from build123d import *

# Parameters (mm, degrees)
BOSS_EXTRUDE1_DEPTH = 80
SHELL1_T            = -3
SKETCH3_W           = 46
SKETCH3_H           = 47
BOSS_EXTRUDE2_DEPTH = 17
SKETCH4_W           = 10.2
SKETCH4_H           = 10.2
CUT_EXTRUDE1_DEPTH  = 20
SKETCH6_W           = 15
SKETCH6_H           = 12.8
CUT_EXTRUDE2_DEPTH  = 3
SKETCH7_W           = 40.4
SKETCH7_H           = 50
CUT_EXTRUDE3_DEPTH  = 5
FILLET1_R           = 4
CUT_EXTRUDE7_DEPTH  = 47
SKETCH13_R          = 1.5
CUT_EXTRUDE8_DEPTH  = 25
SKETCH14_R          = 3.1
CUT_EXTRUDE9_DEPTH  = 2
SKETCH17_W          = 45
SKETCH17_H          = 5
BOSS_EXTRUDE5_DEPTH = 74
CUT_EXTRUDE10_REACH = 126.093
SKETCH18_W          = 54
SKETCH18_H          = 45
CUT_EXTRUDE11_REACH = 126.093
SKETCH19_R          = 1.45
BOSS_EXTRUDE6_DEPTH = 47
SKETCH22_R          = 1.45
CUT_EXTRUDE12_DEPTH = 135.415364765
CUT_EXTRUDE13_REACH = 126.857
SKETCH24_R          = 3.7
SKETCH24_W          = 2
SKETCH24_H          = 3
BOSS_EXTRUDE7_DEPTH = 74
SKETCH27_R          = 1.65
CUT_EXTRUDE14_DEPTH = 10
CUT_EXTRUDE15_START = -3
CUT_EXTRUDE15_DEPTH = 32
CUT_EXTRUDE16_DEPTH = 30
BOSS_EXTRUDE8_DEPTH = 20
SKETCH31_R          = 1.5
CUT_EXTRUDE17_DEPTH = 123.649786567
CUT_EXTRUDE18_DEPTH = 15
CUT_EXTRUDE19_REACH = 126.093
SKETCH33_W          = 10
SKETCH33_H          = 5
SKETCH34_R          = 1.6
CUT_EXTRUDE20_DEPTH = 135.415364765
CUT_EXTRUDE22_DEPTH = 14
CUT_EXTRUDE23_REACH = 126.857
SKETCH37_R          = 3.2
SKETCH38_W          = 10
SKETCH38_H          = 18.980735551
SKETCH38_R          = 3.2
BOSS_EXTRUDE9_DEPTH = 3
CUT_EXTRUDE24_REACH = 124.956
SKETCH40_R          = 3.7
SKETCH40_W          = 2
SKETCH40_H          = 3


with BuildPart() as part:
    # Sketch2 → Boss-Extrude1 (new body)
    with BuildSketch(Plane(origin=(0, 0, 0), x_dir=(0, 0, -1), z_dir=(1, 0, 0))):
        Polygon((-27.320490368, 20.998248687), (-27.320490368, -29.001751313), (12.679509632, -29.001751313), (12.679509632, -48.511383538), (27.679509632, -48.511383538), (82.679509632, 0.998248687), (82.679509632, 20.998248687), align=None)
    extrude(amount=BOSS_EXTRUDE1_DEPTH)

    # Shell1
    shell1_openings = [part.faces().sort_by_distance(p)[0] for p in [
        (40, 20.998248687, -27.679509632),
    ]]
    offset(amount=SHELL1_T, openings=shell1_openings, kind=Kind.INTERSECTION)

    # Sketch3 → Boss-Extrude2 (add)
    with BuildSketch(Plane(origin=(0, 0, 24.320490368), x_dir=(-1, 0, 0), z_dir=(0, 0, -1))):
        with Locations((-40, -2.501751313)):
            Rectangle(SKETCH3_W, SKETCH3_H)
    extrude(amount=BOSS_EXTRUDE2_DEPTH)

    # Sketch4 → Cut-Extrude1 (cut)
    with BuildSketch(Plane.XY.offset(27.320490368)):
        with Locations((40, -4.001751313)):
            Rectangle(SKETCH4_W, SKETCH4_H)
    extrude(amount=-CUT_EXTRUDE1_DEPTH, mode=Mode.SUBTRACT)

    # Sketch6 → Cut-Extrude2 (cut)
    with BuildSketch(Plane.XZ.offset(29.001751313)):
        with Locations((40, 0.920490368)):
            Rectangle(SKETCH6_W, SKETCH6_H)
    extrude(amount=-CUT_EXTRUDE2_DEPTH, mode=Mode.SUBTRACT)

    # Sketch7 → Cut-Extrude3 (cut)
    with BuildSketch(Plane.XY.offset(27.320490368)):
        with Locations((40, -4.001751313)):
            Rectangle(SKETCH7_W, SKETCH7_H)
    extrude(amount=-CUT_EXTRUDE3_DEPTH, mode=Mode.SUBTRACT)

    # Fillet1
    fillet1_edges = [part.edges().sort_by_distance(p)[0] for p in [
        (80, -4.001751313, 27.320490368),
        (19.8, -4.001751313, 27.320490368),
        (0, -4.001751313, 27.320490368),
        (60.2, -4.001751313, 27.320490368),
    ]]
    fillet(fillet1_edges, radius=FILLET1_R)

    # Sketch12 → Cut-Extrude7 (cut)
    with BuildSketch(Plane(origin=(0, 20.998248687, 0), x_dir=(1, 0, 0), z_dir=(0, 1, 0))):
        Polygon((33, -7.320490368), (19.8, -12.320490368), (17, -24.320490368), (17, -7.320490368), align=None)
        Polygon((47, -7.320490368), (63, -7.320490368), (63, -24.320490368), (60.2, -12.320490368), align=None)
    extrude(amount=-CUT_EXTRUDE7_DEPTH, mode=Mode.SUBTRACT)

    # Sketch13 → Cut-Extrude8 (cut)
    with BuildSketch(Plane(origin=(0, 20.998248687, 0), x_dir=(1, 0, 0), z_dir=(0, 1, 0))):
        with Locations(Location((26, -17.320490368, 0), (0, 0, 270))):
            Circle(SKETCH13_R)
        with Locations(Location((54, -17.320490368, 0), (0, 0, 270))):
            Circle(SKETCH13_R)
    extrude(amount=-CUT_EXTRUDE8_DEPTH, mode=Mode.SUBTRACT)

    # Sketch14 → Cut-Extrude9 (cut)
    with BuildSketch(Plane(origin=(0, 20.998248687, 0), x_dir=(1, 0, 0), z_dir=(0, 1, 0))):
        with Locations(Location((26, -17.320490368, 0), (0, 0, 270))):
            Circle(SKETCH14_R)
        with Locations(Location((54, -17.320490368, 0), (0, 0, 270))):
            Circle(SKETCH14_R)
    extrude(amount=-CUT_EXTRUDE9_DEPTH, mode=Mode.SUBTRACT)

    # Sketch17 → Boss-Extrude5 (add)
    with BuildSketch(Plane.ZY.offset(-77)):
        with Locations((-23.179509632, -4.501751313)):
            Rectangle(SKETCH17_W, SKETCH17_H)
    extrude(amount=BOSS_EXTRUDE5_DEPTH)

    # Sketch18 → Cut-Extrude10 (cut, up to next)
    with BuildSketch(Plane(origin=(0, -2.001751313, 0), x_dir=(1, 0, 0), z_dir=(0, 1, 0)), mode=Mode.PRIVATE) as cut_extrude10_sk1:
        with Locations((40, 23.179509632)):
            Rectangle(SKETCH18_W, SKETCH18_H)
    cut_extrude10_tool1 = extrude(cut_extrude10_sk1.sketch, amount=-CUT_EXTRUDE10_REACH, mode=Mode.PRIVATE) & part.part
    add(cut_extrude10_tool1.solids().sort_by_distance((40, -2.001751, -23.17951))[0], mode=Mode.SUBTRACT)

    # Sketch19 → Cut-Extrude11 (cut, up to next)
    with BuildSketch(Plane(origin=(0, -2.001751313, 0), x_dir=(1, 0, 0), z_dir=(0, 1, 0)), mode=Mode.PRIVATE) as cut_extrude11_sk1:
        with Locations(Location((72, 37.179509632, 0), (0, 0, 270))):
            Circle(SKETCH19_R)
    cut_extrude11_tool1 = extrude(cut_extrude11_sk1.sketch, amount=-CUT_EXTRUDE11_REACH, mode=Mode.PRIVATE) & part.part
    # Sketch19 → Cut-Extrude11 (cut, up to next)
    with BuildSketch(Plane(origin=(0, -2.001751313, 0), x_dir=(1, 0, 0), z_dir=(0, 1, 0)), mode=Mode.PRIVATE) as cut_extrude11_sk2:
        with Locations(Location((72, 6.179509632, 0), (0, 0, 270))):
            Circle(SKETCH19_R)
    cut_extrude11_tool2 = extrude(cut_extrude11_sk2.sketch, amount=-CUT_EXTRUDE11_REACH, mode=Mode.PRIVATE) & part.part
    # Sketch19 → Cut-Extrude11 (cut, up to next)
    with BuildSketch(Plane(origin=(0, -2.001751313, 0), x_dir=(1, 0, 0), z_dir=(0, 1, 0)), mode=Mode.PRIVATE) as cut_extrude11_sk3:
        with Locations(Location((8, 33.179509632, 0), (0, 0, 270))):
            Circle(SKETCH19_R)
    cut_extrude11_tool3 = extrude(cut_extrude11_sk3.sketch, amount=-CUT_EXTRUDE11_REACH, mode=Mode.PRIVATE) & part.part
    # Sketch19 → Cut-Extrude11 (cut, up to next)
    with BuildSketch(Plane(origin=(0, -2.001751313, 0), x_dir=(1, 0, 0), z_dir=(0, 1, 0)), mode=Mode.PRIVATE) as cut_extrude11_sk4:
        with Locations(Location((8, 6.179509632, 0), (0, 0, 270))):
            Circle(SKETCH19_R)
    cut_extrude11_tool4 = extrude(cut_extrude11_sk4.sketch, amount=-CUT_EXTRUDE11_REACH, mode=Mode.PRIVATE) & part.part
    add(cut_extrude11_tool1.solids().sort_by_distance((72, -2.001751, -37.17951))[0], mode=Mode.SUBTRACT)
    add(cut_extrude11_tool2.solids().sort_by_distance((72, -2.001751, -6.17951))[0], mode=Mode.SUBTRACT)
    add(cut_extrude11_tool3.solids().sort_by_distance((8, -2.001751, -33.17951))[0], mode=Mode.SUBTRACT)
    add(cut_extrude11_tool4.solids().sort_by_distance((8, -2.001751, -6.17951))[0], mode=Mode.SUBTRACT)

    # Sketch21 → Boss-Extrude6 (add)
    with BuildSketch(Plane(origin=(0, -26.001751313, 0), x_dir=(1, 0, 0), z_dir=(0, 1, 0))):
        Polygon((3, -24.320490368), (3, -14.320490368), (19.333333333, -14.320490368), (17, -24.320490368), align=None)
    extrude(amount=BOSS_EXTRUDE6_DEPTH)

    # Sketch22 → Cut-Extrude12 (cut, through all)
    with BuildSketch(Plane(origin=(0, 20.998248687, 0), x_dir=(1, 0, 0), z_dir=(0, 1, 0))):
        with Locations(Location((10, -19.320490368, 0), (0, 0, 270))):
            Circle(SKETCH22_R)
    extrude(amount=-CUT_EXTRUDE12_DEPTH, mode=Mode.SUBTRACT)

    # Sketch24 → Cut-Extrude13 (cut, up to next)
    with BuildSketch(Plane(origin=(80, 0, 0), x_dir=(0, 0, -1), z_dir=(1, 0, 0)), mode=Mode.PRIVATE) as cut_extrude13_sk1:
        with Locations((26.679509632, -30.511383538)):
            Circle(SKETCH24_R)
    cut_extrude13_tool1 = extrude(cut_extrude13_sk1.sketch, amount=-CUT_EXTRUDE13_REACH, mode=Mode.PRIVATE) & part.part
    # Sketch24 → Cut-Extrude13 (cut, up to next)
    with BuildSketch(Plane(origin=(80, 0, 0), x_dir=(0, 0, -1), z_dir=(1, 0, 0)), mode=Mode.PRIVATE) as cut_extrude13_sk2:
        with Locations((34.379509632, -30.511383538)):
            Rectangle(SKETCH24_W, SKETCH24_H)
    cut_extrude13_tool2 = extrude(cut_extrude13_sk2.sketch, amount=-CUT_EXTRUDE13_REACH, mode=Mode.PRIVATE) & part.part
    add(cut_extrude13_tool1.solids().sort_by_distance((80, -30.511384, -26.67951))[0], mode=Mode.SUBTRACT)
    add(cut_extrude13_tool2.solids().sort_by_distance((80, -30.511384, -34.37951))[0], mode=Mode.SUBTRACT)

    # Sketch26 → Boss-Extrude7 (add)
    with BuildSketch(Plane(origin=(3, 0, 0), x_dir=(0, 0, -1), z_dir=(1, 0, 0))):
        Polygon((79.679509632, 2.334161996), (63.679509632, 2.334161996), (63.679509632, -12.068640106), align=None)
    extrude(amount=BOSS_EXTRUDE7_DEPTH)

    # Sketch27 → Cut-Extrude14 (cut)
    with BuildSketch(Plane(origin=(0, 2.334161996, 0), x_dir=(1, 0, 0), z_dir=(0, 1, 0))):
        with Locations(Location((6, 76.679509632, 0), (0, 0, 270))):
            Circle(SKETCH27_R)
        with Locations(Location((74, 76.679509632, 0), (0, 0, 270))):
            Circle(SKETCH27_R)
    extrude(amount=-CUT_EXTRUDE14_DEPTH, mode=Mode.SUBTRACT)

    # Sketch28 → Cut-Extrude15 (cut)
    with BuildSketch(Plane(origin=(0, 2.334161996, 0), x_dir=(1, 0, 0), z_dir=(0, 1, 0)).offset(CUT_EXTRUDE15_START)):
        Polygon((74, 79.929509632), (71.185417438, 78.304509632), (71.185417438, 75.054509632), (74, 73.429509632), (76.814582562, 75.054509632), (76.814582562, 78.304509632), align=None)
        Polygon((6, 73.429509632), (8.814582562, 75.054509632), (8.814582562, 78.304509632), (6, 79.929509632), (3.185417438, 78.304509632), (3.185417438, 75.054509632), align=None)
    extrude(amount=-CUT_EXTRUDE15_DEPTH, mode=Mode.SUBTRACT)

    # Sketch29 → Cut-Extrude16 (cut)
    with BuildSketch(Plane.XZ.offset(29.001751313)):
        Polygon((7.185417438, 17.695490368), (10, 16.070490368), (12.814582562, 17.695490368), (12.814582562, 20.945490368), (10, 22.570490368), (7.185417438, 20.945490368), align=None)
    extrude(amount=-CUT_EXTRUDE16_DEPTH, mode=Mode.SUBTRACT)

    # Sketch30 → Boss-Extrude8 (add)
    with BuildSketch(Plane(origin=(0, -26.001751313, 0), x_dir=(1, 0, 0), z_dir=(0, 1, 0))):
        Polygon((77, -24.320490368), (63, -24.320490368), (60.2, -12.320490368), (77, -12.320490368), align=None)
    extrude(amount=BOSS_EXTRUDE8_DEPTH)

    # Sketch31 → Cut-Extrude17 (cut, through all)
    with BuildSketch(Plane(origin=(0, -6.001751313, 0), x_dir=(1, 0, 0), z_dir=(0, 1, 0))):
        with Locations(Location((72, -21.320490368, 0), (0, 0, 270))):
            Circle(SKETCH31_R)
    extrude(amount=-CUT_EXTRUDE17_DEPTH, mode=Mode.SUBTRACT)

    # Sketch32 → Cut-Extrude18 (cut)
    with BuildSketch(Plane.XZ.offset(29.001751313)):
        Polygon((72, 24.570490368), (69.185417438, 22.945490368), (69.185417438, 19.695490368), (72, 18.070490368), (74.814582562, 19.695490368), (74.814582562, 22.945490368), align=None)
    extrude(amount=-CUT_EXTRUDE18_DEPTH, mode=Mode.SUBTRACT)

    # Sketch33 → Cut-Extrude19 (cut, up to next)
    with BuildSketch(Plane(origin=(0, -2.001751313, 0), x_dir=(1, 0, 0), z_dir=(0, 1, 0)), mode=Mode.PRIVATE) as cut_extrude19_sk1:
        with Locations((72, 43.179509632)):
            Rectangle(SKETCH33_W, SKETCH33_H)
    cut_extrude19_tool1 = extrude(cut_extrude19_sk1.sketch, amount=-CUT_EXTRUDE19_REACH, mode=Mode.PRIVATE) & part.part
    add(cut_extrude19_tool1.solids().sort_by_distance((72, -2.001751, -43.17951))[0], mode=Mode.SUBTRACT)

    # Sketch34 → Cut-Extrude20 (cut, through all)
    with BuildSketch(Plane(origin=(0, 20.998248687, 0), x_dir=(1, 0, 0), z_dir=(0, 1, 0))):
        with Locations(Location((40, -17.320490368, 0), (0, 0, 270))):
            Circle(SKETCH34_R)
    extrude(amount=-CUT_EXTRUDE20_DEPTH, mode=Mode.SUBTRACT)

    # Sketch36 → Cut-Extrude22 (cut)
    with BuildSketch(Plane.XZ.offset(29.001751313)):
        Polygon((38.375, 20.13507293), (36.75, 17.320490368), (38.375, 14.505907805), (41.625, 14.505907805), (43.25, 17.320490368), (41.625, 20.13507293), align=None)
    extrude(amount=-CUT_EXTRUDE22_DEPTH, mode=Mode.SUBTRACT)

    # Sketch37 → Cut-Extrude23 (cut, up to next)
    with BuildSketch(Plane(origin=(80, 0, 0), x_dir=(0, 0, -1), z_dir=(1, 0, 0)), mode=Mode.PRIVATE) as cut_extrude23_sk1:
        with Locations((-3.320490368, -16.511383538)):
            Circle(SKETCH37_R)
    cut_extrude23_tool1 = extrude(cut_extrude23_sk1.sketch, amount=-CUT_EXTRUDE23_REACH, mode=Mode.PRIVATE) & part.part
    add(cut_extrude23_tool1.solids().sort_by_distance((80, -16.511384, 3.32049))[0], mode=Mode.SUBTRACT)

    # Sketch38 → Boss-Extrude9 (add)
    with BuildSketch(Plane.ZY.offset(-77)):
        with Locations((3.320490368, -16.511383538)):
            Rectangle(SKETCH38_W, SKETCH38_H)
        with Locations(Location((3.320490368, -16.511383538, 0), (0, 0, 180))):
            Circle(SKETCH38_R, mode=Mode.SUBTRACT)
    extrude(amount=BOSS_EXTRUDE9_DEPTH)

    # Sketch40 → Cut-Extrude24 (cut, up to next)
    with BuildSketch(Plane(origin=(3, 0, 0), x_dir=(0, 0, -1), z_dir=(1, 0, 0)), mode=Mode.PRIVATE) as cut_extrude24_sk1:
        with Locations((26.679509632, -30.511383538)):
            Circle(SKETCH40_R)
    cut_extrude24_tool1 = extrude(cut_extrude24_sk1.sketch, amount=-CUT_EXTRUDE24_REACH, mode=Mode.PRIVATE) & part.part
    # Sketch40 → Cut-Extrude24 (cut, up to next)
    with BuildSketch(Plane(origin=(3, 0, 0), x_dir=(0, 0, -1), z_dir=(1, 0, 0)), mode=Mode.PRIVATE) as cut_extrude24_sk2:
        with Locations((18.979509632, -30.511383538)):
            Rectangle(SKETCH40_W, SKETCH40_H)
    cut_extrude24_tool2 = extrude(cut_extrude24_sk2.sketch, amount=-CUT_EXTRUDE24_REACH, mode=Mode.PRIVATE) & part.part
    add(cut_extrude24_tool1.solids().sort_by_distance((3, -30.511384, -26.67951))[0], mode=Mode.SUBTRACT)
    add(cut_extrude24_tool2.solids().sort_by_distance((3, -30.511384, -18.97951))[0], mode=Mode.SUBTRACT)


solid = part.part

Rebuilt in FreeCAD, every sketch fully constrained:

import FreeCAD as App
import Part
import Sketcher
from FreeCAD import Vector
Q = App.Units.Quantity


def edges_at(feature, points):
    """Names of the edges that pass closest to the given points."""
    edges = feature.Shape.Edges
    near = lambda p: min(range(len(edges)), key=lambda i: edges[i].distToShape(Part.Vertex(*p))[0])
    return sorted({f"Edge{near(p) + 1}" for p in points})


def faces_at(feature, points):
    """Names of the faces that lie closest to the given points."""
    faces = feature.Shape.Faces
    near = lambda p: min(range(len(faces)), key=lambda i: faces[i].distToShape(Part.Vertex(*p))[0])
    return sorted({f"Face{near(p) + 1}" for p in points})


def add_polygon(sketch, points):
    """Adds a closed chain of lines whose ends are joined by coincident constraints."""
    first, n = sketch.GeometryCount, len(points)
    for a, b in zip(points, points[1:] + points[:1]):
        sketch.addGeometry(Part.LineSegment(App.Vector(*a, 0), App.Vector(*b, 0)), False)
    for i in range(n):
        sketch.addConstraint(Sketcher.Constraint("Coincident", first + i, 2, first + (i + 1) % n, 1))

doc = App.newDocument("Part")
body = doc.addObject("PartDesign::Body", "Body")

# Sketch on YZ plane
sketch1 = body.newObject("Sketcher::SketchObject", "Sketch")
sketch1.AttachmentSupport = (doc.getObject("YZ_Plane"), [""])
sketch1.MapMode = "FlatFace"
add_polygon(sketch1, [(21, 27), (-29, 27), (-29, -13), (-49, -13), (-49, -28), (1, -83), (21, -83)])  # lines 0-6
sketch1.addConstraint(Sketcher.Constraint("Horizontal", 0))
sketch1.addConstraint(Sketcher.Constraint("Vertical", 1))
sketch1.addConstraint(Sketcher.Constraint("Horizontal", 2))
sketch1.addConstraint(Sketcher.Constraint("Vertical", 3))
sketch1.addConstraint(Sketcher.Constraint("Horizontal", 5))
sketch1.addConstraint(Sketcher.Constraint("Vertical", 6))
sketch1.addConstraint(Sketcher.Constraint("DistanceX", 0, 2, 0, 1, 50.0))
sketch1.addConstraint(Sketcher.Constraint("DistanceX", 5, 1, 5, 2, 20.0))
sketch1.addConstraint(Sketcher.Constraint("DistanceY", 1, 2, 1, 1, 40.0))
sketch1.addConstraint(Sketcher.Constraint("DistanceY", 3, 2, 3, 1, 15.0))
sketch1.addConstraint(Sketcher.Constraint("DistanceY", 6, 1, 6, 2, 110.0))
sketch1.addConstraint(Sketcher.Constraint("DistanceX", 2, 2, 2, 1, 19.509632))
sketch1.addConstraint(Sketcher.Constraint("DistanceX", 0, 2, -1, 1, 29.001751))
sketch1.addConstraint(Sketcher.Constraint("DistanceY", -1, 1, 0, 2, 27.32049))
pad1 = body.newObject("PartDesign::Pad", "Pad")
pad1.Profile = sketch1
pad1.Length = 80
doc.recompute()

thickness = body.newObject("PartDesign::Thickness", "Thickness")
thickness.Base = (pad1, faces_at(pad1, [(40, 20.998, -27.68)]))
thickness.Value = 3
thickness.Reversed = True
thickness.Join = "Intersection"

# Sketch on XY plane
sketch2 = body.newObject("Sketcher::SketchObject", "Sketch001")
sketch2.AttachmentSupport = (doc.getObject("XY_Plane"), [""])
sketch2.MapMode = "FlatFace"
sketch2.AttachmentOffset = App.Placement(Vector(0, 0, 24.32049), App.Rotation())
add_polygon(sketch2, [(63, 21), (63, -26), (17, -26), (17, 21)])  # lines 0-3
sketch2.addConstraint(Sketcher.Constraint("Vertical", 0))
sketch2.addConstraint(Sketcher.Constraint("Horizontal", 1))
sketch2.addConstraint(Sketcher.Constraint("Vertical", 2))
sketch2.addConstraint(Sketcher.Constraint("Horizontal", 3))
sketch2.addConstraint(Sketcher.Constraint("DistanceX", 1, 2, 1, 1, 46.0))
sketch2.addConstraint(Sketcher.Constraint("DistanceY", 0, 2, 0, 1, 47.0))
sketch2.addConstraint(Sketcher.Constraint("DistanceX", -1, 1, 0, 2, 63.0))
sketch2.addConstraint(Sketcher.Constraint("DistanceY", 0, 2, -1, 1, 26.001751))
pad2 = body.newObject("PartDesign::Pad", "Pad001")
pad2.Profile = sketch2
pad2.Length = 17
pad2.Reversed = True

# Sketch on XY plane
sketch3 = body.newObject("Sketcher::SketchObject", "Sketch002")
sketch3.AttachmentSupport = (doc.getObject("XY_Plane"), [""])
sketch3.MapMode = "FlatFace"
sketch3.AttachmentOffset = App.Placement(Vector(0, 0, 27.32049), App.Rotation())
add_polygon(sketch3, [(35, 1), (35, -9), (45, -9), (45, 1)])  # lines 0-3
sketch3.addConstraint(Sketcher.Constraint("Vertical", 0))
sketch3.addConstraint(Sketcher.Constraint("Horizontal", 1))
sketch3.addConstraint(Sketcher.Constraint("Vertical", 2))
sketch3.addConstraint(Sketcher.Constraint("Horizontal", 3))
sketch3.addConstraint(Sketcher.Constraint("Equal", 3, 0))
sketch3.addConstraint(Sketcher.Constraint("DistanceX", 1, 1, 1, 2, 10.2))
sketch3.addConstraint(Sketcher.Constraint("DistanceX", -1, 1, 0, 2, 34.9))
sketch3.addConstraint(Sketcher.Constraint("DistanceY", 0, 2, -1, 1, 9.101751))
pocket1 = body.newObject("PartDesign::Pocket", "Pocket")
pocket1.Profile = sketch3
pocket1.Length = 20

# Sketch on XZ plane
sketch4 = body.newObject("Sketcher::SketchObject", "Sketch003")
sketch4.AttachmentSupport = (doc.getObject("XZ_Plane"), [""])
sketch4.MapMode = "FlatFace"
sketch4.AttachmentOffset = App.Placement(Vector(0, 0, 29.001751), App.Rotation())
add_polygon(sketch4, [(32, 7), (32, -5), (48, -5), (48, 7)])  # lines 0-3
sketch4.addConstraint(Sketcher.Constraint("Vertical", 0))
sketch4.addConstraint(Sketcher.Constraint("Horizontal", 1))
sketch4.addConstraint(Sketcher.Constraint("Vertical", 2))
sketch4.addConstraint(Sketcher.Constraint("Horizontal", 3))
sketch4.addConstraint(Sketcher.Constraint("DistanceX", 1, 1, 1, 2, 15.0))
sketch4.addConstraint(Sketcher.Constraint("DistanceY", 0, 2, 0, 1, 12.8))
sketch4.addConstraint(Sketcher.Constraint("DistanceX", -1, 1, 0, 2, 32.5))
sketch4.addConstraint(Sketcher.Constraint("DistanceY", 0, 2, -1, 1, 5.47951))
pocket2 = body.newObject("PartDesign::Pocket", "Pocket001")
pocket2.Profile = sketch4
pocket2.Length = 3

# Sketch on XY plane
sketch5 = body.newObject("Sketcher::SketchObject", "Sketch004")
sketch5.AttachmentSupport = (doc.getObject("XY_Plane"), [""])
sketch5.MapMode = "FlatFace"
sketch5.AttachmentOffset = App.Placement(Vector(0, 0, 27.32049), App.Rotation())
add_polygon(sketch5, [(20, 21), (20, -29), (60, -29), (60, 21)])  # lines 0-3
sketch5.addConstraint(Sketcher.Constraint("Vertical", 0))
sketch5.addConstraint(Sketcher.Constraint("Horizontal", 1))
sketch5.addConstraint(Sketcher.Constraint("Vertical", 2))
sketch5.addConstraint(Sketcher.Constraint("Horizontal", 3))
sketch5.addConstraint(Sketcher.Constraint("DistanceY", 0, 2, 0, 1, 50.0))
sketch5.addConstraint(Sketcher.Constraint("DistanceX", 1, 1, 1, 2, 40.4))
sketch5.addConstraint(Sketcher.Constraint("DistanceX", -1, 1, 0, 2, 19.8))
sketch5.addConstraint(Sketcher.Constraint("DistanceY", 0, 2, -1, 1, 29.001751))
pocket3 = body.newObject("PartDesign::Pocket", "Pocket002")
pocket3.Profile = sketch5
pocket3.Length = 5
doc.recompute()

fillet = body.newObject("PartDesign::Fillet", "Fillet")
fillet.Base = (pocket3, edges_at(pocket3, [
    (80, -4.002, 27.32),
    (19.8, -4.002, 27.32),
    (0, -4.002, 27.32),
    (60.2, -4.002, 27.32),
]))
fillet.Radius = 4

# Sketch on XZ plane
sketch6 = body.newObject("Sketcher::SketchObject", "Sketch005")
sketch6.AttachmentSupport = (doc.getObject("XZ_Plane"), [""])
sketch6.MapMode = "FlatFace"
sketch6.AttachmentOffset = App.Placement(Vector(0, 0, -20.998249), App.Rotation())
add_polygon(sketch6, [(20, 12), (33, 7), (17, 7), (17, 24)])  # lines 0-3
add_polygon(sketch6, [(63, 7), (47, 7), (60, 12), (63, 24)])  # lines 4-7
sketch6.addConstraint(Sketcher.Constraint("Horizontal", 1))
sketch6.addConstraint(Sketcher.Constraint("Vertical", 2))
sketch6.addConstraint(Sketcher.Constraint("Horizontal", 4))
sketch6.addConstraint(Sketcher.Constraint("Vertical", 7))
sketch6.addConstraint(Sketcher.Constraint("Horizontal", 1, 2, 4, 2))
sketch6.addConstraint(Sketcher.Constraint("Horizontal", 3, 2, 5, 2))
sketch6.addConstraint(Sketcher.Constraint("Horizontal", 2, 2, 6, 2))
sketch6.addConstraint(Sketcher.Constraint("Equal", 1, 4))
sketch6.addConstraint(Sketcher.Constraint("Equal", 0, 5))
sketch6.addConstraint(Sketcher.Constraint("DistanceX", 1, 2, 1, 1, 16.0))
sketch6.addConstraint(Sketcher.Constraint("DistanceY", 2, 1, 2, 2, 17.0))
sketch6.addConstraint(Sketcher.Constraint("DistanceX", -1, 1, 0, 2, 33.0))
sketch6.addConstraint(Sketcher.Constraint("DistanceX", -1, 1, 4, 2, 47.0))
sketch6.addConstraint(Sketcher.Constraint("DistanceY", 1, 2, 3, 2, 5.0))
sketch6.addConstraint(Sketcher.Constraint("DistanceX", -1, 1, 3, 2, 19.8))
sketch6.addConstraint(Sketcher.Constraint("DistanceY", -1, 1, 0, 2, 7.32049))
pocket4 = body.newObject("PartDesign::Pocket", "Pocket003")
pocket4.Profile = sketch6
pocket4.Length = 47
pocket4.Reversed = True

# Sketch on XZ plane
sketch7 = body.newObject("Sketcher::SketchObject", "Sketch006")
sketch7.AttachmentSupport = (doc.getObject("XZ_Plane"), [""])
sketch7.MapMode = "FlatFace"
sketch7.AttachmentOffset = App.Placement(Vector(0, 0, -20.998249), App.Rotation())
sketch7.addGeometry(Part.Circle(Vector(26, 17.3, 0), Vector(0, 0, 1), 1.5), False)
sketch7.addGeometry(Part.Circle(Vector(54, 17.3, 0), Vector(0, 0, 1), 1.5), False)
sketch7.addConstraint(Sketcher.Constraint("Equal", 0, 1))
sketch7.addConstraint(Sketcher.Constraint("Horizontal", 0, 3, 1, 3))
sketch7.addConstraint(Sketcher.Constraint("Diameter", 0, 3.0))
sketch7.addConstraint(Sketcher.Constraint("DistanceX", -1, 1, 0, 3, 26.0))
sketch7.addConstraint(Sketcher.Constraint("DistanceX", -1, 1, 1, 3, 54.0))
sketch7.addConstraint(Sketcher.Constraint("DistanceY", -1, 1, 0, 3, 17.32049))
pocket5 = body.newObject("PartDesign::Pocket", "Pocket004")
pocket5.Profile = sketch7
pocket5.Length = 25
pocket5.Reversed = True

# Sketch on XZ plane
sketch8 = body.newObject("Sketcher::SketchObject", "Sketch007")
sketch8.AttachmentSupport = (doc.getObject("XZ_Plane"), [""])
sketch8.MapMode = "FlatFace"
sketch8.AttachmentOffset = App.Placement(Vector(0, 0, -20.998249), App.Rotation())
sketch8.addGeometry(Part.Circle(Vector(26, 17.3, 0), Vector(0, 0, 1), 3.1), False)
sketch8.addGeometry(Part.Circle(Vector(54, 17.3, 0), Vector(0, 0, 1), 3.1), False)
sketch8.addConstraint(Sketcher.Constraint("Equal", 0, 1))
sketch8.addConstraint(Sketcher.Constraint("Horizontal", 0, 3, 1, 3))
sketch8.addConstraint(Sketcher.Constraint("Diameter", 0, 6.2))
sketch8.addConstraint(Sketcher.Constraint("DistanceX", -1, 1, 0, 3, 26.0))
sketch8.addConstraint(Sketcher.Constraint("DistanceX", -1, 1, 1, 3, 54.0))
sketch8.addConstraint(Sketcher.Constraint("DistanceY", -1, 1, 0, 3, 17.32049))
pocket6 = body.newObject("PartDesign::Pocket", "Pocket005")
pocket6.Profile = sketch8
pocket6.Length = 2
pocket6.Reversed = True

# Sketch on YZ plane
sketch9 = body.newObject("Sketcher::SketchObject", "Sketch008")
sketch9.AttachmentSupport = (doc.getObject("YZ_Plane"), [""])
sketch9.MapMode = "FlatFace"
sketch9.AttachmentOffset = App.Placement(Vector(0, 0, 77), App.Rotation())
add_polygon(sketch9, [(-2, -46), (-7, -46), (-7, -1), (-2, -1)])  # lines 0-3
sketch9.addConstraint(Sketcher.Constraint("Horizontal", 0))
sketch9.addConstraint(Sketcher.Constraint("Vertical", 1))
sketch9.addConstraint(Sketcher.Constraint("Horizontal", 2))
sketch9.addConstraint(Sketcher.Constraint("Vertical", 3))
sketch9.addConstraint(Sketcher.Constraint("DistanceX", 0, 2, 0, 1, 5.0))
sketch9.addConstraint(Sketcher.Constraint("DistanceY", 1, 1, 1, 2, 45.0))
sketch9.addConstraint(Sketcher.Constraint("DistanceX", 0, 2, -1, 1, 7.001751))
sketch9.addConstraint(Sketcher.Constraint("DistanceY", 0, 2, -1, 1, 45.67951))
pad3 = body.newObject("PartDesign::Pad", "Pad002")
pad3.Profile = sketch9
pad3.Length = 74
pad3.Reversed = True

# Sketch on XZ plane
sketch10 = body.newObject("Sketcher::SketchObject", "Sketch009")
sketch10.AttachmentSupport = (doc.getObject("XZ_Plane"), [""])
sketch10.MapMode = "FlatFace"
sketch10.AttachmentOffset = App.Placement(Vector(0, 0, 2.001751), App.Rotation())
add_polygon(sketch10, [(13, -46), (13, -1), (67, -1), (67, -46)])  # lines 0-3
sketch10.addConstraint(Sketcher.Constraint("Vertical", 0))
sketch10.addConstraint(Sketcher.Constraint("Horizontal", 1))
sketch10.addConstraint(Sketcher.Constraint("Vertical", 2))
sketch10.addConstraint(Sketcher.Constraint("Horizontal", 3))
sketch10.addConstraint(Sketcher.Constraint("DistanceX", 1, 1, 1, 2, 54.0))
sketch10.addConstraint(Sketcher.Constraint("DistanceY", 0, 1, 0, 2, 45.0))
sketch10.addConstraint(Sketcher.Constraint("DistanceX", -1, 1, 0, 2, 13.0))
sketch10.addConstraint(Sketcher.Constraint("DistanceY", 0, 2, -1, 1, 0.67951))
pocket7 = body.newObject("PartDesign::Pocket", "Pocket006")
pocket7.Profile = sketch10
pocket7.Type = "UpToFirst"
pocket7.Reversed = True

# Sketch on XZ plane
sketch11 = body.newObject("Sketcher::SketchObject", "Sketch010")
sketch11.AttachmentSupport = (doc.getObject("XZ_Plane"), [""])
sketch11.MapMode = "FlatFace"
sketch11.AttachmentOffset = App.Placement(Vector(0, 0, 2.001751), App.Rotation())
sketch11.addGeometry(Part.Circle(Vector(72, -37.2, 0), Vector(0, 0, 1), 1.4), False)
sketch11.addConstraint(Sketcher.Constraint("Diameter", 0, 2.9))
sketch11.addConstraint(Sketcher.Constraint("DistanceX", -1, 1, 0, 3, 72.0))
sketch11.addConstraint(Sketcher.Constraint("DistanceY", 0, 3, -1, 1, 37.17951))
pocket8 = body.newObject("PartDesign::Pocket", "Pocket007")
pocket8.Profile = sketch11
pocket8.Type = "UpToFirst"
pocket8.Reversed = True

# Sketch on XZ plane
sketch12 = body.newObject("Sketcher::SketchObject", "Sketch011")
sketch12.AttachmentSupport = (doc.getObject("XZ_Plane"), [""])
sketch12.MapMode = "FlatFace"
sketch12.AttachmentOffset = App.Placement(Vector(0, 0, 2.001751), App.Rotation())
sketch12.addGeometry(Part.Circle(Vector(72, -6.2, 0), Vector(0, 0, 1), 1.4), False)
sketch12.addConstraint(Sketcher.Constraint("Diameter", 0, 2.9))
sketch12.addConstraint(Sketcher.Constraint("DistanceX", -1, 1, 0, 3, 72.0))
sketch12.addConstraint(Sketcher.Constraint("DistanceY", 0, 3, -1, 1, 6.17951))
pocket9 = body.newObject("PartDesign::Pocket", "Pocket008")
pocket9.Profile = sketch12
pocket9.Type = "UpToFirst"
pocket9.Reversed = True

# Sketch on XZ plane
sketch13 = body.newObject("Sketcher::SketchObject", "Sketch012")
sketch13.AttachmentSupport = (doc.getObject("XZ_Plane"), [""])
sketch13.MapMode = "FlatFace"
sketch13.AttachmentOffset = App.Placement(Vector(0, 0, 2.001751), App.Rotation())
sketch13.addGeometry(Part.Circle(Vector(8, -33.2, 0), Vector(0, 0, 1), 1.4), False)
sketch13.addConstraint(Sketcher.Constraint("Diameter", 0, 2.9))
sketch13.addConstraint(Sketcher.Constraint("DistanceX", -1, 1, 0, 3, 8.0))
sketch13.addConstraint(Sketcher.Constraint("DistanceY", 0, 3, -1, 1, 33.17951))
pocket10 = body.newObject("PartDesign::Pocket", "Pocket009")
pocket10.Profile = sketch13
pocket10.Type = "UpToFirst"
pocket10.Reversed = True

# Sketch on XZ plane
sketch14 = body.newObject("Sketcher::SketchObject", "Sketch013")
sketch14.AttachmentSupport = (doc.getObject("XZ_Plane"), [""])
sketch14.MapMode = "FlatFace"
sketch14.AttachmentOffset = App.Placement(Vector(0, 0, 2.001751), App.Rotation())
sketch14.addGeometry(Part.Circle(Vector(8, -6.2, 0), Vector(0, 0, 1), 1.4), False)
sketch14.addConstraint(Sketcher.Constraint("Diameter", 0, 2.9))
sketch14.addConstraint(Sketcher.Constraint("DistanceX", -1, 1, 0, 3, 8.0))
sketch14.addConstraint(Sketcher.Constraint("DistanceY", 0, 3, -1, 1, 6.17951))
pocket11 = body.newObject("PartDesign::Pocket", "Pocket010")
pocket11.Profile = sketch14
pocket11.Type = "UpToFirst"
pocket11.Reversed = True

# Sketch on XZ plane
sketch15 = body.newObject("Sketcher::SketchObject", "Sketch014")
sketch15.AttachmentSupport = (doc.getObject("XZ_Plane"), [""])
sketch15.MapMode = "FlatFace"
sketch15.AttachmentOffset = App.Placement(Vector(0, 0, 26.001751), App.Rotation())
add_polygon(sketch15, [(3, 14), (3, 24), (17, 24), (19, 14)])  # lines 0-3
sketch15.addConstraint(Sketcher.Constraint("Vertical", 0))
sketch15.addConstraint(Sketcher.Constraint("Horizontal", 1))
sketch15.addConstraint(Sketcher.Constraint("Horizontal", 3))
sketch15.addConstraint(Sketcher.Constraint("DistanceX", 1, 1, 1, 2, 14.0))
sketch15.addConstraint(Sketcher.Constraint("DistanceY", 0, 1, 0, 2, 10.0))
sketch15.addConstraint(Sketcher.Constraint("DistanceX", -1, 1, 0, 2, 3.0))
sketch15.addConstraint(Sketcher.Constraint("DistanceX", 3, 2, 3, 1, 16.333333))
sketch15.addConstraint(Sketcher.Constraint("DistanceY", -1, 1, 0, 2, 24.32049))
pad4 = body.newObject("PartDesign::Pad", "Pad003")
pad4.Profile = sketch15
pad4.Length = 47
pad4.Reversed = True

# Sketch on XZ plane
sketch16 = body.newObject("Sketcher::SketchObject", "Sketch015")
sketch16.AttachmentSupport = (doc.getObject("XZ_Plane"), [""])
sketch16.MapMode = "FlatFace"
sketch16.AttachmentOffset = App.Placement(Vector(0, 0, -20.998249), App.Rotation())
sketch16.addGeometry(Part.Circle(Vector(10, 19.3, 0), Vector(0, 0, 1), 1.4), False)
sketch16.addConstraint(Sketcher.Constraint("Diameter", 0, 2.9))
sketch16.addConstraint(Sketcher.Constraint("DistanceX", -1, 1, 0, 3, 10.0))
sketch16.addConstraint(Sketcher.Constraint("DistanceY", -1, 1, 0, 3, 19.32049))
pocket12 = body.newObject("PartDesign::Pocket", "Pocket011")
pocket12.Profile = sketch16
pocket12.Type = "ThroughAll"
pocket12.Reversed = True

# Sketch on YZ plane
sketch17 = body.newObject("Sketcher::SketchObject", "Sketch016")
sketch17.AttachmentSupport = (doc.getObject("YZ_Plane"), [""])
sketch17.MapMode = "FlatFace"
sketch17.AttachmentOffset = App.Placement(Vector(0, 0, 80), App.Rotation())
sketch17.addGeometry(Part.Circle(Vector(-30.5, -26.7, 0), Vector(0, 0, 1), 3.7), False)
sketch17.addConstraint(Sketcher.Constraint("Diameter", 0, 7.4))
sketch17.addConstraint(Sketcher.Constraint("DistanceY", 0, 3, -1, 1, 26.67951))
sketch17.addConstraint(Sketcher.Constraint("DistanceX", 0, 3, -1, 1, 30.511384))
pocket13 = body.newObject("PartDesign::Pocket", "Pocket012")
pocket13.Profile = sketch17
pocket13.Type = "UpToFirst"

# Sketch on YZ plane
sketch18 = body.newObject("Sketcher::SketchObject", "Sketch017")
sketch18.AttachmentSupport = (doc.getObject("YZ_Plane"), [""])
sketch18.MapMode = "FlatFace"
sketch18.AttachmentOffset = App.Placement(Vector(0, 0, 80), App.Rotation())
add_polygon(sketch18, [(-29, -33.4), (-32, -33.4), (-32, -35.4), (-29, -35.4)])  # lines 0-3
sketch18.addConstraint(Sketcher.Constraint("Horizontal", 0))
sketch18.addConstraint(Sketcher.Constraint("Vertical", 1))
sketch18.addConstraint(Sketcher.Constraint("Horizontal", 2))
sketch18.addConstraint(Sketcher.Constraint("Vertical", 3))
sketch18.addConstraint(Sketcher.Constraint("DistanceX", 0, 2, 0, 1, 3.0))
sketch18.addConstraint(Sketcher.Constraint("DistanceY", 1, 2, 1, 1, 2.0))
sketch18.addConstraint(Sketcher.Constraint("DistanceY", 0, 2, -1, 1, 33.37951))
sketch18.addConstraint(Sketcher.Constraint("DistanceX", 0, 2, -1, 1, 32.011384))
pocket14 = body.newObject("PartDesign::Pocket", "Pocket013")
pocket14.Profile = sketch18
pocket14.Type = "UpToFirst"

# Sketch on YZ plane
sketch19 = body.newObject("Sketcher::SketchObject", "Sketch018")
sketch19.AttachmentSupport = (doc.getObject("YZ_Plane"), [""])
sketch19.MapMode = "FlatFace"
sketch19.AttachmentOffset = App.Placement(Vector(0, 0, 3), App.Rotation())
add_polygon(sketch19, [(2, -80), (2, -64), (-12, -64)])  # lines 0-2
sketch19.addConstraint(Sketcher.Constraint("Vertical", 0))
sketch19.addConstraint(Sketcher.Constraint("Horizontal", 1))
sketch19.addConstraint(Sketcher.Constraint("DistanceY", 0, 1, 0, 2, 16.0))
sketch19.addConstraint(Sketcher.Constraint("DistanceX", 1, 2, 1, 1, 14.402802))
sketch19.addConstraint(Sketcher.Constraint("DistanceX", -1, 1, 0, 2, 2.334162))
sketch19.addConstraint(Sketcher.Constraint("DistanceY", 0, 2, -1, 1, 63.67951))
pad5 = body.newObject("PartDesign::Pad", "Pad004")
pad5.Profile = sketch19
pad5.Length = 74

# Sketch on XZ plane
sketch20 = body.newObject("Sketcher::SketchObject", "Sketch019")
sketch20.AttachmentSupport = (doc.getObject("XZ_Plane"), [""])
sketch20.MapMode = "FlatFace"
sketch20.AttachmentOffset = App.Placement(Vector(0, 0, -2.334162), App.Rotation())
sketch20.addGeometry(Part.Circle(Vector(6, -76.7, 0), Vector(0, 0, 1), 1.6), False)
sketch20.addGeometry(Part.Circle(Vector(74, -76.7, 0), Vector(0, 0, 1), 1.6), False)
sketch20.addConstraint(Sketcher.Constraint("Equal", 0, 1))
sketch20.addConstraint(Sketcher.Constraint("Horizontal", 0, 3, 1, 3))
sketch20.addConstraint(Sketcher.Constraint("Diameter", 0, 3.3))
sketch20.addConstraint(Sketcher.Constraint("DistanceX", -1, 1, 0, 3, 6.0))
sketch20.addConstraint(Sketcher.Constraint("DistanceX", -1, 1, 1, 3, 74.0))
sketch20.addConstraint(Sketcher.Constraint("DistanceY", 0, 3, -1, 1, 76.67951))
pocket15 = body.newObject("PartDesign::Pocket", "Pocket014")
pocket15.Profile = sketch20
pocket15.Length = 10
pocket15.Reversed = True

# Sketch on XZ plane
sketch21 = body.newObject("Sketcher::SketchObject", "Sketch020")
sketch21.AttachmentSupport = (doc.getObject("XZ_Plane"), [""])
sketch21.MapMode = "FlatFace"
sketch21.AttachmentOffset = App.Placement(Vector(0, 0, 0.665838), App.Rotation())
add_polygon(sketch21, [(74, -79.9), (71.2, -78.3), (71.2, -75.1), (74, -73.4), (76.8, -75.1), (76.8, -78.3)])  # lines 0-5
add_polygon(sketch21, [(6, -73.4), (8.8, -75.1), (8.8, -78.3), (6, -79.9), (3.2, -78.3), (3.2, -75.1)])  # lines 6-11
sketch21.addConstraint(Sketcher.Constraint("Vertical", 1))
sketch21.addConstraint(Sketcher.Constraint("Vertical", 4))
sketch21.addConstraint(Sketcher.Constraint("Vertical", 7))
sketch21.addConstraint(Sketcher.Constraint("Vertical", 10))
sketch21.addConstraint(Sketcher.Constraint("Parallel", 0, 3))
sketch21.addConstraint(Sketcher.Constraint("Parallel", 2, 5))
sketch21.addConstraint(Sketcher.Constraint("Parallel", 3, 6))
sketch21.addConstraint(Sketcher.Constraint("Parallel", 5, 8))
sketch21.addConstraint(Sketcher.Constraint("Parallel", 6, 9))
sketch21.addConstraint(Sketcher.Constraint("Parallel", 8, 11))
sketch21.addConstraint(Sketcher.Constraint("Horizontal", 1, 2, 3, 2))
sketch21.addConstraint(Sketcher.Constraint("Horizontal", 0, 2, 4, 2))
sketch21.addConstraint(Sketcher.Constraint("Horizontal", 3, 2, 6, 2))
sketch21.addConstraint(Sketcher.Constraint("Horizontal", 4, 2, 7, 2))
sketch21.addConstraint(Sketcher.Constraint("Horizontal", 5, 2, 8, 2))
sketch21.addConstraint(Sketcher.Constraint("Horizontal", 7, 2, 9, 2))
sketch21.addConstraint(Sketcher.Constraint("Horizontal", 6, 2, 10, 2))
sketch21.addConstraint(Sketcher.Constraint("Vertical", 2, 2, 5, 2))
sketch21.addConstraint(Sketcher.Constraint("Angle", 0, Q("150 deg")))
sketch21.addConstraint(Sketcher.Constraint("DistanceX", -1, 1, 2, 2, 74.0))
sketch21.addConstraint(Sketcher.Constraint("DistanceX", -1, 1, 8, 2, 6.0))
sketch21.addConstraint(Sketcher.Constraint("DistanceY", 1, 1, 1, 2, 3.25))
sketch21.addConstraint(Sketcher.Constraint("DistanceY", 5, 2, 2, 2, 6.5))
sketch21.addConstraint(Sketcher.Constraint("DistanceY", 0, 2, -1, 1, 78.30451))
pocket16 = body.newObject("PartDesign::Pocket", "Pocket015")
pocket16.Profile = sketch21
pocket16.Length = 32
pocket16.Reversed = True

# Sketch on XZ plane
sketch22 = body.newObject("Sketcher::SketchObject", "Sketch021")
sketch22.AttachmentSupport = (doc.getObject("XZ_Plane"), [""])
sketch22.MapMode = "FlatFace"
sketch22.AttachmentOffset = App.Placement(Vector(0, 0, 29.001751), App.Rotation())
add_polygon(sketch22, [(7.2, 17.7), (10, 16.1), (12.8, 17.7), (12.8, 20.9), (10, 22.6), (7.2, 20.9)])  # lines 0-5
sketch22.addConstraint(Sketcher.Constraint("Vertical", 2))
sketch22.addConstraint(Sketcher.Constraint("Vertical", 5))
sketch22.addConstraint(Sketcher.Constraint("Parallel", 0, 3))
sketch22.addConstraint(Sketcher.Constraint("Parallel", 1, 4))
sketch22.addConstraint(Sketcher.Constraint("Horizontal", 2, 2, 4, 2))
sketch22.addConstraint(Sketcher.Constraint("Horizontal", 1, 2, 5, 2))
sketch22.addConstraint(Sketcher.Constraint("Vertical", 0, 2, 3, 2))
sketch22.addConstraint(Sketcher.Constraint("Angle", 0, Q("-30 deg")))
sketch22.addConstraint(Sketcher.Constraint("DistanceX", -1, 1, 0, 2, 10.0))
sketch22.addConstraint(Sketcher.Constraint("DistanceY", 2, 1, 2, 2, 3.25))
sketch22.addConstraint(Sketcher.Constraint("DistanceY", 0, 2, 3, 2, 6.5))
sketch22.addConstraint(Sketcher.Constraint("DistanceY", -1, 1, 0, 2, 16.07049))
pocket17 = body.newObject("PartDesign::Pocket", "Pocket016")
pocket17.Profile = sketch22
pocket17.Length = 30

# Sketch on XZ plane
sketch23 = body.newObject("Sketcher::SketchObject", "Sketch022")
sketch23.AttachmentSupport = (doc.getObject("XZ_Plane"), [""])
sketch23.MapMode = "FlatFace"
sketch23.AttachmentOffset = App.Placement(Vector(0, 0, 26.001751), App.Rotation())
add_polygon(sketch23, [(63, 24), (77, 24), (77, 12), (60, 12)])  # lines 0-3
sketch23.addConstraint(Sketcher.Constraint("Horizontal", 0))
sketch23.addConstraint(Sketcher.Constraint("Vertical", 1))
sketch23.addConstraint(Sketcher.Constraint("Horizontal", 2))
sketch23.addConstraint(Sketcher.Constraint("DistanceX", 0, 1, 0, 2, 14.0))
sketch23.addConstraint(Sketcher.Constraint("DistanceY", 1, 2, 1, 1, 12.0))
sketch23.addConstraint(Sketcher.Constraint("DistanceX", 2, 2, 2, 1, 16.8))
sketch23.addConstraint(Sketcher.Constraint("DistanceX", -1, 1, 0, 2, 77.0))
sketch23.addConstraint(Sketcher.Constraint("DistanceY", -1, 1, 0, 2, 24.32049))
pad6 = body.newObject("PartDesign::Pad", "Pad005")
pad6.Profile = sketch23
pad6.Length = 20
pad6.Reversed = True

# Sketch on XZ plane
sketch24 = body.newObject("Sketcher::SketchObject", "Sketch023")
sketch24.AttachmentSupport = (doc.getObject("XZ_Plane"), [""])
sketch24.MapMode = "FlatFace"
sketch24.AttachmentOffset = App.Placement(Vector(0, 0, 6.001751), App.Rotation())
sketch24.addGeometry(Part.Circle(Vector(72, 21.3, 0), Vector(0, 0, 1), 1.5), False)
sketch24.addConstraint(Sketcher.Constraint("Diameter", 0, 3.0))
sketch24.addConstraint(Sketcher.Constraint("DistanceX", -1, 1, 0, 3, 72.0))
sketch24.addConstraint(Sketcher.Constraint("DistanceY", -1, 1, 0, 3, 21.32049))
pocket18 = body.newObject("PartDesign::Pocket", "Pocket017")
pocket18.Profile = sketch24
pocket18.Type = "ThroughAll"
pocket18.Reversed = True

# Sketch on XZ plane
sketch25 = body.newObject("Sketcher::SketchObject", "Sketch024")
sketch25.AttachmentSupport = (doc.getObject("XZ_Plane"), [""])
sketch25.MapMode = "FlatFace"
sketch25.AttachmentOffset = App.Placement(Vector(0, 0, 29.001751), App.Rotation())
add_polygon(sketch25, [(72, 24.6), (69.2, 22.9), (69.2, 19.7), (72, 18.1), (74.8, 19.7), (74.8, 22.9)])  # lines 0-5
sketch25.addConstraint(Sketcher.Constraint("Vertical", 1))
sketch25.addConstraint(Sketcher.Constraint("Vertical", 4))
sketch25.addConstraint(Sketcher.Constraint("Parallel", 0, 3))
sketch25.addConstraint(Sketcher.Constraint("Parallel", 2, 5))
sketch25.addConstraint(Sketcher.Constraint("Horizontal", 1, 2, 3, 2))
sketch25.addConstraint(Sketcher.Constraint("Horizontal", 0, 2, 4, 2))
sketch25.addConstraint(Sketcher.Constraint("Vertical", 2, 2, 5, 2))
sketch25.addConstraint(Sketcher.Constraint("Angle", 0, Q("-150 deg")))
sketch25.addConstraint(Sketcher.Constraint("DistanceX", -1, 1, 2, 2, 72.0))
sketch25.addConstraint(Sketcher.Constraint("DistanceY", 1, 2, 1, 1, 3.25))
sketch25.addConstraint(Sketcher.Constraint("DistanceY", 2, 2, 5, 2, 6.5))
sketch25.addConstraint(Sketcher.Constraint("DistanceY", -1, 1, 0, 2, 22.94549))
pocket19 = body.newObject("PartDesign::Pocket", "Pocket018")
pocket19.Profile = sketch25
pocket19.Length = 15

# Sketch on XZ plane
sketch26 = body.newObject("Sketcher::SketchObject", "Sketch025")
sketch26.AttachmentSupport = (doc.getObject("XZ_Plane"), [""])
sketch26.MapMode = "FlatFace"
sketch26.AttachmentOffset = App.Placement(Vector(0, 0, 2.001751), App.Rotation())
add_polygon(sketch26, [(67, -46), (67, -41), (77, -41), (77, -46)])  # lines 0-3
sketch26.addConstraint(Sketcher.Constraint("Vertical", 0))
sketch26.addConstraint(Sketcher.Constraint("Horizontal", 1))
sketch26.addConstraint(Sketcher.Constraint("Vertical", 2))
sketch26.addConstraint(Sketcher.Constraint("Horizontal", 3))
sketch26.addConstraint(Sketcher.Constraint("DistanceX", 1, 1, 1, 2, 10.0))
sketch26.addConstraint(Sketcher.Constraint("DistanceY", 0, 1, 0, 2, 5.0))
sketch26.addConstraint(Sketcher.Constraint("DistanceX", -1, 1, 0, 2, 67.0))
sketch26.addConstraint(Sketcher.Constraint("DistanceY", 0, 2, -1, 1, 40.67951))
pocket20 = body.newObject("PartDesign::Pocket", "Pocket019")
pocket20.Profile = sketch26
pocket20.Type = "UpToFirst"
pocket20.Reversed = True

# Sketch on XZ plane
sketch27 = body.newObject("Sketcher::SketchObject", "Sketch026")
sketch27.AttachmentSupport = (doc.getObject("XZ_Plane"), [""])
sketch27.MapMode = "FlatFace"
sketch27.AttachmentOffset = App.Placement(Vector(0, 0, -20.998249), App.Rotation())
sketch27.addGeometry(Part.Circle(Vector(40, 17.3, 0), Vector(0, 0, 1), 1.6), False)
sketch27.addConstraint(Sketcher.Constraint("Diameter", 0, 3.2))
sketch27.addConstraint(Sketcher.Constraint("DistanceX", -1, 1, 0, 3, 40.0))
sketch27.addConstraint(Sketcher.Constraint("DistanceY", -1, 1, 0, 3, 17.32049))
pocket21 = body.newObject("PartDesign::Pocket", "Pocket020")
pocket21.Profile = sketch27
pocket21.Type = "ThroughAll"
pocket21.Reversed = True

# Sketch on XZ plane
sketch28 = body.newObject("Sketcher::SketchObject", "Sketch027")
sketch28.AttachmentSupport = (doc.getObject("XZ_Plane"), [""])
sketch28.MapMode = "FlatFace"
sketch28.AttachmentOffset = App.Placement(Vector(0, 0, 29.001751), App.Rotation())
add_polygon(sketch28, [(38.4, 20.1), (36.8, 17.3), (38.4, 14.5), (41.6, 14.5), (43.2, 17.3), (41.6, 20.1)])  # lines 0-5
sketch28.addConstraint(Sketcher.Constraint("Horizontal", 2))
sketch28.addConstraint(Sketcher.Constraint("Horizontal", 5))
sketch28.addConstraint(Sketcher.Constraint("Parallel", 0, 3))
sketch28.addConstraint(Sketcher.Constraint("Parallel", 1, 4))
sketch28.addConstraint(Sketcher.Constraint("Horizontal", 0, 2, 3, 2))
sketch28.addConstraint(Sketcher.Constraint("Vertical", 2, 2, 4, 2))
sketch28.addConstraint(Sketcher.Constraint("Vertical", 1, 2, 5, 2))
sketch28.addConstraint(Sketcher.Constraint("Angle", 0, Q("-120 deg")))
sketch28.addConstraint(Sketcher.Constraint("DistanceX", 2, 1, 2, 2, 3.25))
sketch28.addConstraint(Sketcher.Constraint("DistanceX", 0, 2, 3, 2, 6.5))
sketch28.addConstraint(Sketcher.Constraint("DistanceX", -1, 1, 0, 2, 36.75))
sketch28.addConstraint(Sketcher.Constraint("DistanceY", -1, 1, 0, 2, 17.32049))
pocket22 = body.newObject("PartDesign::Pocket", "Pocket021")
pocket22.Profile = sketch28
pocket22.Length = 14

# Sketch on YZ plane
sketch29 = body.newObject("Sketcher::SketchObject", "Sketch028")
sketch29.AttachmentSupport = (doc.getObject("YZ_Plane"), [""])
sketch29.MapMode = "FlatFace"
sketch29.AttachmentOffset = App.Placement(Vector(0, 0, 80), App.Rotation())
sketch29.addGeometry(Part.Circle(Vector(-16.5, 3.3, 0), Vector(0, 0, 1), 3.2), False)
sketch29.addConstraint(Sketcher.Constraint("Diameter", 0, 6.4))
sketch29.addConstraint(Sketcher.Constraint("DistanceY", -1, 1, 0, 3, 3.32049))
sketch29.addConstraint(Sketcher.Constraint("DistanceX", 0, 3, -1, 1, 16.511384))
pocket23 = body.newObject("PartDesign::Pocket", "Pocket022")
pocket23.Profile = sketch29
pocket23.Type = "UpToFirst"

# Sketch on YZ plane
sketch30 = body.newObject("Sketcher::SketchObject", "Sketch029")
sketch30.AttachmentSupport = (doc.getObject("YZ_Plane"), [""])
sketch30.MapMode = "FlatFace"
sketch30.AttachmentOffset = App.Placement(Vector(0, 0, 77), App.Rotation())
add_polygon(sketch30, [(-7, -1.7), (-26, -1.7), (-26, 8.3), (-7, 8.3)])  # lines 0-3
sketch30.addGeometry(Part.Circle(Vector(-16.5, 3.3, 0), Vector(0, 0, 1), 3.2), False)  # 4
sketch30.addConstraint(Sketcher.Constraint("Horizontal", 0))
sketch30.addConstraint(Sketcher.Constraint("Vertical", 1))
sketch30.addConstraint(Sketcher.Constraint("Horizontal", 2))
sketch30.addConstraint(Sketcher.Constraint("Vertical", 3))
sketch30.addConstraint(Sketcher.Constraint("Diameter", 4, 6.4))
sketch30.addConstraint(Sketcher.Constraint("DistanceY", 1, 1, 1, 2, 10.0))
sketch30.addConstraint(Sketcher.Constraint("DistanceY", 0, 2, 4, 3, 5.0))
sketch30.addConstraint(Sketcher.Constraint("DistanceX", 0, 2, 0, 1, 18.980736))
sketch30.addConstraint(Sketcher.Constraint("DistanceY", -1, 1, 4, 3, 3.32049))
sketch30.addConstraint(Sketcher.Constraint("DistanceX", 0, 2, -1, 1, 26.001751))
sketch30.addConstraint(Sketcher.Constraint("DistanceX", 4, 3, -1, 1, 16.511384))
pad7 = body.newObject("PartDesign::Pad", "Pad006")
pad7.Profile = sketch30
pad7.Length = 3
pad7.Reversed = True

# Sketch on YZ plane
sketch31 = body.newObject("Sketcher::SketchObject", "Sketch030")
sketch31.AttachmentSupport = (doc.getObject("YZ_Plane"), [""])
sketch31.MapMode = "FlatFace"
sketch31.AttachmentOffset = App.Placement(Vector(0, 0, 3), App.Rotation())
sketch31.addGeometry(Part.Circle(Vector(-30.5, -26.7, 0), Vector(0, 0, 1), 3.7), False)
sketch31.addConstraint(Sketcher.Constraint("Diameter", 0, 7.4))
sketch31.addConstraint(Sketcher.Constraint("DistanceY", 0, 3, -1, 1, 26.67951))
sketch31.addConstraint(Sketcher.Constraint("DistanceX", 0, 3, -1, 1, 30.511384))
pocket24 = body.newObject("PartDesign::Pocket", "Pocket023")
pocket24.Profile = sketch31
pocket24.Type = "UpToFirst"

# Sketch on YZ plane
sketch32 = body.newObject("Sketcher::SketchObject", "Sketch031")
sketch32.AttachmentSupport = (doc.getObject("YZ_Plane"), [""])
sketch32.MapMode = "FlatFace"
sketch32.AttachmentOffset = App.Placement(Vector(0, 0, 3), App.Rotation())
add_polygon(sketch32, [(-29, -18), (-32, -18), (-32, -20), (-29, -20)])  # lines 0-3
sketch32.addConstraint(Sketcher.Constraint("Horizontal", 0))
sketch32.addConstraint(Sketcher.Constraint("Vertical", 1))
sketch32.addConstraint(Sketcher.Constraint("Horizontal", 2))
sketch32.addConstraint(Sketcher.Constraint("Vertical", 3))
sketch32.addConstraint(Sketcher.Constraint("DistanceX", 0, 2, 0, 1, 3.0))
sketch32.addConstraint(Sketcher.Constraint("DistanceY", 1, 2, 1, 1, 2.0))
sketch32.addConstraint(Sketcher.Constraint("DistanceY", 0, 2, -1, 1, 17.97951))
sketch32.addConstraint(Sketcher.Constraint("DistanceX", 0, 2, -1, 1, 32.011384))
pocket25 = body.newObject("PartDesign::Pocket", "Pocket024")
pocket25.Profile = sketch32
pocket25.Type = "UpToFirst"

doc.recompute()
